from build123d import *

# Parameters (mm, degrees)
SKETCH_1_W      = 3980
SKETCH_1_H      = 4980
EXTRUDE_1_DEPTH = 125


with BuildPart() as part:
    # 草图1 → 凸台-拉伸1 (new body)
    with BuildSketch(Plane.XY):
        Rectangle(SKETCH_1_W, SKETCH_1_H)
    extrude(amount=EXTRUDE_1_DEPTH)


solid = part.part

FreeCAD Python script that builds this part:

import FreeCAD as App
import Part
import Sketcher

doc = App.newDocument("Part")
body = doc.addObject("PartDesign::Body", "Body")

sketch1 = body.newObject("Sketcher::SketchObject", "Sketch")
sketch1.AttachmentSupport = (doc.getObject("XY_Plane"), [""])
sketch1.MapMode = "FlatFace"
sketch1.addGeometry([
    Part.LineSegment(App.Vector(-1990, 2490, 0), App.Vector(-1990, -2490, 0)),
    Part.LineSegment(App.Vector(-1990, -2490, 0), App.Vector(1990, -2490, 0)),
    Part.LineSegment(App.Vector(1990, -2490, 0), App.Vector(1990, 2490, 0)),
    Part.LineSegment(App.Vector(1990, 2490, 0), App.Vector(-1990, 2490, 0)),
], False)
sketch1.addConstraint([
    Sketcher.Constraint("Coincident", 0, 2, 1, 1),
    Sketcher.Constraint("Coincident", 1, 2, 2, 1),
    Sketcher.Constraint("Coincident", 2, 2, 3, 1),
    Sketcher.Constraint("Coincident", 3, 2, 0, 1),
    Sketcher.Constraint("Vertical", 0),
    Sketcher.Constraint("Horizontal", 1),
    Sketcher.Constraint("Vertical", 2),
    Sketcher.Constraint("Horizontal", 3),
    Sketcher.Constraint("Symmetric", 0, 2, 2, 2, -1, 1),
    Sketcher.Constraint("DistanceX", 1, 1, 1, 2, 3980.0),
    Sketcher.Constraint("DistanceY", 0, 2, 0, 1, 4980.0),
])
pad1 = body.newObject("PartDesign::Pad", "Pad")
pad1.Profile = sketch1
pad1.Length = 125

doc.recompute()
